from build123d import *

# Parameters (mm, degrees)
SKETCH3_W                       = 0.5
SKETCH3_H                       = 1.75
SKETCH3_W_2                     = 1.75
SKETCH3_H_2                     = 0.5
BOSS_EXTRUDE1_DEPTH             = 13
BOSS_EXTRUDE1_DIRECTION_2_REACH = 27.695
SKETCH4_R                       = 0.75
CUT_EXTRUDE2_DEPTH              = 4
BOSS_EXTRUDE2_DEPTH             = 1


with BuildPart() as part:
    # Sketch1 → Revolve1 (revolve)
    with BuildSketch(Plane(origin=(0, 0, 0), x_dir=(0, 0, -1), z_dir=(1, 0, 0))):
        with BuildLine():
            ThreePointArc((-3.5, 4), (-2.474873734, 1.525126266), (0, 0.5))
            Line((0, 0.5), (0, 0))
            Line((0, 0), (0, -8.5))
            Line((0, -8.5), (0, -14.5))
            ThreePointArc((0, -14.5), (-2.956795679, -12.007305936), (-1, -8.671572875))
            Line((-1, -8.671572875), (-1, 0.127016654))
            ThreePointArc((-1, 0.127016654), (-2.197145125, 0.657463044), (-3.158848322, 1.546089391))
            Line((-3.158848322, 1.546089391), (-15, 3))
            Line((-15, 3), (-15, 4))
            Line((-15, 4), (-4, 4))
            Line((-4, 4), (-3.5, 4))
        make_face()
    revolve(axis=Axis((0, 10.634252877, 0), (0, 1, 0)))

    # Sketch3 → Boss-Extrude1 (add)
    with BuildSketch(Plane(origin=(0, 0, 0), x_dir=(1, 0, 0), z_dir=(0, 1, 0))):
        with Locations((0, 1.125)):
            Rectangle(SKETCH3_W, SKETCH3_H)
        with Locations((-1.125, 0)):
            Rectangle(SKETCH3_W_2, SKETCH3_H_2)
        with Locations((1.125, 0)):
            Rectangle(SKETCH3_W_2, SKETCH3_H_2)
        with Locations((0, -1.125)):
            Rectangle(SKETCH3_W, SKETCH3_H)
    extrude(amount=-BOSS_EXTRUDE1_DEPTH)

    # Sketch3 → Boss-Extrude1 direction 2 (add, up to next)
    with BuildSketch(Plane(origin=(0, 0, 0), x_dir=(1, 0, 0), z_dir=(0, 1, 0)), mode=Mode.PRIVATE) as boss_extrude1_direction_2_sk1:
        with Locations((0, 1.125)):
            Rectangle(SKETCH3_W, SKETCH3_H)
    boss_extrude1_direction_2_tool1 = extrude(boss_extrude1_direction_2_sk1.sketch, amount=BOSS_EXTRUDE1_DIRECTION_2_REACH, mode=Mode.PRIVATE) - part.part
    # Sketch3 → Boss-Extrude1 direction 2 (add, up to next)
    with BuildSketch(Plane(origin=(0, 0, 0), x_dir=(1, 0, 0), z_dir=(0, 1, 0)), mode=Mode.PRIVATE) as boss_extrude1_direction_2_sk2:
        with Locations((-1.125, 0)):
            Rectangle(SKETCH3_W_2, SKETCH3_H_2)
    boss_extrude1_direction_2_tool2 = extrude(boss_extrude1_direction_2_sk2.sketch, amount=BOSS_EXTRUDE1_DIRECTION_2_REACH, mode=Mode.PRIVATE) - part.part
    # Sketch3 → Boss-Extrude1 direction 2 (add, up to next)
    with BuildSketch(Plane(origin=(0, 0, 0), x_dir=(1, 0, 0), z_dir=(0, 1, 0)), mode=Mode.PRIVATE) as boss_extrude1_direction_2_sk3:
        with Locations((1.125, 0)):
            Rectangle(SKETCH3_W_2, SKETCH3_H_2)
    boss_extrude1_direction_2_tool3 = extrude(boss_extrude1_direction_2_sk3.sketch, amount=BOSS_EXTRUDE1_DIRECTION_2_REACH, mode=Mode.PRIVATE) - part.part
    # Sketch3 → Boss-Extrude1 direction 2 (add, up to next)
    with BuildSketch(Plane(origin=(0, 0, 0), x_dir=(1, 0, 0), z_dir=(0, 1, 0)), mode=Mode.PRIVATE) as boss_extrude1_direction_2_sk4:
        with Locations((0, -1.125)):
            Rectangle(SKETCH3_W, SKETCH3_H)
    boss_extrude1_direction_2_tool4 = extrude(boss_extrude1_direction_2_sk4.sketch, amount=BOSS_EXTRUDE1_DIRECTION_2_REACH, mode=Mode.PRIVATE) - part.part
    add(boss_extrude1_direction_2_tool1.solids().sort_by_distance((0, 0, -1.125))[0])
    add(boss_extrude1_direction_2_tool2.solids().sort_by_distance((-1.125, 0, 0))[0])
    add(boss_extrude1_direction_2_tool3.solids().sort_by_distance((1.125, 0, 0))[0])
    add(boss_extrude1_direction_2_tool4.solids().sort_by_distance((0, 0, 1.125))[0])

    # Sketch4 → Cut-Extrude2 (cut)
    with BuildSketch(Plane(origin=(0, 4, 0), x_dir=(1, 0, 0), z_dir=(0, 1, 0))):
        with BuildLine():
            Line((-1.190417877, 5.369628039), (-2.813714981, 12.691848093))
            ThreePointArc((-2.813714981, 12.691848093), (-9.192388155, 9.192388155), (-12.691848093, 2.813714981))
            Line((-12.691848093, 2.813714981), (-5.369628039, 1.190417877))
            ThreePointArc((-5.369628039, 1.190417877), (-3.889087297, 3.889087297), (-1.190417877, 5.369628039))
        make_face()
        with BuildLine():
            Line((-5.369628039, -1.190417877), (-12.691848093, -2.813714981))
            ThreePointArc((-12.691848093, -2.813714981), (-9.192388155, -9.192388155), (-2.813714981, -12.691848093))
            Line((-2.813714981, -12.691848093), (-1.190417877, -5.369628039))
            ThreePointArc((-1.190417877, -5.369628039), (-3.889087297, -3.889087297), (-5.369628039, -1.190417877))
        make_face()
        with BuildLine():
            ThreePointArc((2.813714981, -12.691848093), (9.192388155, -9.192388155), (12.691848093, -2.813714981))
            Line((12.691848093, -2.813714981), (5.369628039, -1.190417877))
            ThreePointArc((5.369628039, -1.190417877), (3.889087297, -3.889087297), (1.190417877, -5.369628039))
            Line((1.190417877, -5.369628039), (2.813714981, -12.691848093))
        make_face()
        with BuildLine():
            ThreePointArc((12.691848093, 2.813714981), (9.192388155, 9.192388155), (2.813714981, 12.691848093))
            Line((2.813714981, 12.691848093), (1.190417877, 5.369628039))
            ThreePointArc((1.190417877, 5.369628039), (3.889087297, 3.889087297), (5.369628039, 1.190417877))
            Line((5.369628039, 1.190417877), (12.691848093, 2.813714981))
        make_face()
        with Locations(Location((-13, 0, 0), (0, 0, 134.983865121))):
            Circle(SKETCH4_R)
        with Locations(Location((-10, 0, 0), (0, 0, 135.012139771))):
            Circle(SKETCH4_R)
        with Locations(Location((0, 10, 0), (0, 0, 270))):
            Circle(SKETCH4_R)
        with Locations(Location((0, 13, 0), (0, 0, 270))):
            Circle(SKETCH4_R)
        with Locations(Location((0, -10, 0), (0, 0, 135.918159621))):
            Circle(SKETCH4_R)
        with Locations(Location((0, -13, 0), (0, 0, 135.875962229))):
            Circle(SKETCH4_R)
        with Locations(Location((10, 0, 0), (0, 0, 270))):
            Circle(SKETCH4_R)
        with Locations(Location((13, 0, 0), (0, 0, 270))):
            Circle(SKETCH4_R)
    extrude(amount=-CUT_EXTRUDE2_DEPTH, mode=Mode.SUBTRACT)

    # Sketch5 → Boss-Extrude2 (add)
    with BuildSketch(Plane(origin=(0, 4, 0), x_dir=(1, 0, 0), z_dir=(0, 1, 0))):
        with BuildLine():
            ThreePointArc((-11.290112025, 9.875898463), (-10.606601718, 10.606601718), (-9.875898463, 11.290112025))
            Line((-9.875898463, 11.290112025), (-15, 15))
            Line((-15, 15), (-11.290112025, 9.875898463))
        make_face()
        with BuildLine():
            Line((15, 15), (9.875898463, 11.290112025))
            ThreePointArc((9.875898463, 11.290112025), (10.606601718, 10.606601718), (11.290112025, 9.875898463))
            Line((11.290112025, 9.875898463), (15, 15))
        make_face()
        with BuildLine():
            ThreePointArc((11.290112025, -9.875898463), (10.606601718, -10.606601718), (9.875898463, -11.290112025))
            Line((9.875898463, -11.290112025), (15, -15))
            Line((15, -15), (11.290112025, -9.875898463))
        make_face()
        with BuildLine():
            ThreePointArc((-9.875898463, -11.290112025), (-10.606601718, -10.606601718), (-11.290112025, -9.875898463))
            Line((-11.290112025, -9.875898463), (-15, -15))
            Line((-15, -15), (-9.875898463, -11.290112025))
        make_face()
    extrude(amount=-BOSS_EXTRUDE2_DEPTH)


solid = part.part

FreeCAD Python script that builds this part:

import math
import FreeCAD as App
import Part
import Sketcher

V = App.Vector
Q = App.Units.Quantity

doc = App.newDocument("Part")
body = doc.addObject("PartDesign::Body", "Body")

# Sketch on YZ plane
sketch1 = doc.addObject("Sketcher::SketchObject", "Sketch")
body.addObject(sketch1)
sketch1.AttachmentSupport = (doc.YZ_Plane, [""])
sketch1.MapMode = "FlatFace"
sketch1.addGeometry(Part.ArcOfCircle(Part.Circle(V(4, 0, 0), V(0, 0, 1), 3.5), math.radians(90), math.radians(180)), False)
sketch1.addGeometry(Part.LineSegment(V(4, 3.5, 0), V(4, 15, 0)), False)
sketch1.addGeometry(Part.LineSegment(V(4, 15, 0), V(3, 15, 0)), False)
sketch1.addGeometry(Part.LineSegment(V(3, 15, 0), V(1.546089, 3.158848, 0)), False)
sketch1.addGeometry(Part.ArcOfCircle(Part.Circle(V(4, 0, 0), V(0, 0, 1), 4), math.radians(127.841387), math.radians(165.522488)), False)
sketch1.addGeometry(Part.LineSegment(V(0.127017, 1, 0), V(-8.671573, 1, 0)), False)
sketch1.addGeometry(Part.ArcOfCircle(Part.Circle(V(-11.5, 0, 0), V(0, 0, 1), 3), math.radians(19.471221), math.radians(180)), False)
sketch1.addGeometry(Part.LineSegment(V(-14.5, 0, 0), V(0.5, 0, 0)), False)
sketch1.addConstraint(Sketcher.Constraint("Coincident", 0, 1, 1, 1))
sketch1.addConstraint(Sketcher.Constraint("Coincident", 1, 2, 2, 1))
sketch1.addConstraint(Sketcher.Constraint("Coincident", 2, 2, 3, 1))
sketch1.addConstraint(Sketcher.Constraint("Coincident", 3, 2, 4, 1))
sketch1.addConstraint(Sketcher.Constraint("Coincident", 4, 2, 5, 1))
sketch1.addConstraint(Sketcher.Constraint("Coincident", 5, 2, 6, 1))
sketch1.addConstraint(Sketcher.Constraint("Coincident", 6, 2, 7, 1))
sketch1.addConstraint(Sketcher.Constraint("Coincident", 7, 2, 0, 2))
sketch1.addConstraint(Sketcher.Constraint("Vertical", 1))
sketch1.addConstraint(Sketcher.Constraint("Horizontal", 2))
sketch1.addConstraint(Sketcher.Constraint("Horizontal", 5))
sketch1.addConstraint(Sketcher.Constraint("Horizontal", 7))
sketch1.addConstraint(Sketcher.Constraint("Coincident", 4, 3, 0, 3))
sketch1.addConstraint(Sketcher.Constraint("PointOnObject", 0, 3, -1))
sketch1.addConstraint(Sketcher.Constraint("PointOnObject", 6, 3, -1))
sketch1.addConstraint(Sketcher.Constraint("PointOnObject", 6, 2, -1))
sketch1.addConstraint(Sketcher.Constraint("Vertical", 4, 3, 0, 1))
sketch1.addConstraint(Sketcher.Constraint("Radius", 4, Q("4 mm")))
sketch1.addConstraint(Sketcher.Constraint("Radius", 6, Q("3 mm")))
sketch1.addConstraint(Sketcher.Constraint("Radius", 0, Q("3.5 mm")))
sketch1.addConstraint(Sketcher.Constraint("DistanceX", 2, 2, 2, 1, Q("1 mm")))
sketch1.addConstraint(Sketcher.Constraint("DistanceX", 7, 1, 7, 2, Q("15 mm")))
sketch1.addConstraint(Sketcher.Constraint("Angle", 3, Q("-97 deg")))
sketch1.addConstraint(Sketcher.Constraint("DistanceY", 1, 1, 1, 2, Q("11.5 mm")))
sketch1.addConstraint(Sketcher.Constraint("DistanceX", -1, 1, 0, 3, Q("4 mm")))
sketch1.addConstraint(Sketcher.Constraint("DistanceY", -1, 1, 4, 2, Q("1 mm")))
revolution = doc.addObject("PartDesign::Revolution", "Revolution")
body.addObject(revolution)
revolution.Profile = sketch1
revolution.ReferenceAxis = (sketch1, ["H_Axis"])
revolution.Angle = 360

# Sketch on XZ plane
sketch2 = doc.addObject("Sketcher::SketchObject", "Sketch001")
body.addObject(sketch2)
sketch2.AttachmentSupport = (doc.XZ_Plane, [""])
sketch2.MapMode = "FlatFace"
sketch2.addGeometry(Part.LineSegment(V(-0.25, -2, 0), V(-0.25, -0.25, 0)), False)
sketch2.addGeometry(Part.LineSegment(V(-0.25, -0.25, 0), V(0.25, -0.25, 0)), False)
sketch2.addGeometry(Part.LineSegment(V(0.25, -0.25, 0), V(0.25, -2, 0)), False)
sketch2.addGeometry(Part.LineSegment(V(0.25, -2, 0), V(-0.25, -2, 0)), False)
sketch2.addGeometry(Part.LineSegment(V(-2, -0.25, 0), V(-2, 0.25, 0)), False)
sketch2.addGeometry(Part.LineSegment(V(-2, 0.25, 0), V(-0.25, 0.25, 0)), False)
sketch2.addGeometry(Part.LineSegment(V(-0.25, 0.25, 0), V(-0.25, -0.25, 0)), False)
sketch2.addGeometry(Part.LineSegment(V(-0.25, -0.25, 0), V(-2, -0.25, 0)), False)
sketch2.addGeometry(Part.LineSegment(V(0.25, -0.25, 0), V(0.25, 0.25, 0)), False)
sketch2.addGeometry(Part.LineSegment(V(0.25, 0.25, 0), V(2, 0.25, 0)), False)
sketch2.addGeometry(Part.LineSegment(V(2, 0.25, 0), V(2, -0.25, 0)), False)
sketch2.addGeometry(Part.LineSegment(V(2, -0.25, 0), V(0.25, -0.25, 0)), False)
sketch2.addGeometry(Part.LineSegment(V(-0.25, 0.25, 0), V(-0.25, 2, 0)), False)
sketch2.addGeometry(Part.LineSegment(V(-0.25, 2, 0), V(0.25, 2, 0)), False)
sketch2.addGeometry(Part.LineSegment(V(0.25, 2, 0), V(0.25, 0.25, 0)), False)
sketch2.addGeometry(Part.LineSegment(V(0.25, 0.25, 0), V(-0.25, 0.25, 0)), False)
sketch2.addConstraint(Sketcher.Constraint("Coincident", 0, 2, 1, 1))
sketch2.addConstraint(Sketcher.Constraint("Coincident", 1, 2, 2, 1))
sketch2.addConstraint(Sketcher.Constraint("Coincident", 2, 2, 3, 1))
sketch2.addConstraint(Sketcher.Constraint("Coincident", 3, 2, 0, 1))
sketch2.addConstraint(Sketcher.Constraint("Coincident", 4, 2, 5, 1))
sketch2.addConstraint(Sketcher.Constraint("Coincident", 5, 2, 6, 1))
sketch2.addConstraint(Sketcher.Constraint("Coincident", 6, 2, 7, 1))
sketch2.addConstraint(Sketcher.Constraint("Coincident", 7, 2, 4, 1))
sketch2.addConstraint(Sketcher.Constraint("Coincident", 8, 2, 9, 1))
sketch2.addConstraint(Sketcher.Constraint("Coincident", 9, 2, 10, 1))
sketch2.addConstraint(Sketcher.Constraint("Coincident", 10, 2, 11, 1))
sketch2.addConstraint(Sketcher.Constraint("Coincident", 11, 2, 8, 1))
sketch2.addConstraint(Sketcher.Constraint("Coincident", 12, 2, 13, 1))
sketch2.addConstraint(Sketcher.Constraint("Coincident", 13, 2, 14, 1))
sketch2.addConstraint(Sketcher.Constraint("Coincident", 14, 2, 15, 1))
sketch2.addConstraint(Sketcher.Constraint("Coincident", 15, 2, 12, 1))
sketch2.addConstraint(Sketcher.Constraint("Vertical", 0))
sketch2.addConstraint(Sketcher.Constraint("Horizontal", 1))
sketch2.addConstraint(Sketcher.Constraint("Vertical", 2))
sketch2.addConstraint(Sketcher.Constraint("Horizontal", 3))
sketch2.addConstraint(Sketcher.Constraint("Vertical", 4))
sketch2.addConstraint(Sketcher.Constraint("Horizontal", 5))
sketch2.addConstraint(Sketcher.Constraint("Vertical", 6))
sketch2.addConstraint(Sketcher.Constraint("Horizontal", 7))
sketch2.addConstraint(Sketcher.Constraint("Vertical", 8))
sketch2.addConstraint(Sketcher.Constraint("Horizontal", 9))
sketch2.addConstraint(Sketcher.Constraint("Vertical", 10))
sketch2.addConstraint(Sketcher.Constraint("Horizontal", 11))
sketch2.addConstraint(Sketcher.Constraint("Vertical", 12))
sketch2.addConstraint(Sketcher.Constraint("Horizontal", 13))
sketch2.addConstraint(Sketcher.Constraint("Vertical", 14))
sketch2.addConstraint(Sketcher.Constraint("Horizontal", 15))
sketch2.addConstraint(Sketcher.Constraint("Coincident", 6, 2, 0, 2))
sketch2.addConstraint(Sketcher.Constraint("Coincident", 11, 2, 1, 2))
sketch2.addConstraint(Sketcher.Constraint("Coincident", 14, 2, 8, 2))
sketch2.addConstraint(Sketcher.Constraint("Coincident", 15, 2, 5, 2))
sketch2.addConstraint(Sketcher.Constraint("Symmetric", 1, 2, 5, 2, -1, 1))
sketch2.addConstraint(Sketcher.Constraint("Equal", 7, 9))
sketch2.addConstraint(Sketcher.Constraint("Equal", 11, 0))
sketch2.addConstraint(Sketcher.Constraint("Equal", 15, 4))
sketch2.addConstraint(Sketcher.Constraint("Equal", 2, 12))
sketch2.addConstraint(Sketcher.Constraint("DistanceX", 1, 1, 1, 2, Q("0.5 mm")))
sketch2.addConstraint(Sketcher.Constraint("DistanceY", 2, 2, -1, 1, Q("2 mm")))
pad1 = doc.addObject("PartDesign::Pad", "Pad")
body.addObject(pad1)
pad1.Profile = sketch2
pad1.Length = 13

# Sketch on XZ plane
sketch3 = doc.addObject("Sketcher::SketchObject", "Sketch002")
body.addObject(sketch3)
sketch3.AttachmentSupport = (doc.XZ_Plane, [""])
sketch3.MapMode = "FlatFace"
sketch3.addGeometry(Part.LineSegment(V(-0.25, -2, 0), V(-0.25, -0.25, 0)), False)
sketch3.addGeometry(Part.LineSegment(V(-0.25, -0.25, 0), V(0.25, -0.25, 0)), False)
sketch3.addGeometry(Part.LineSegment(V(0.25, -0.25, 0), V(0.25, -2, 0)), False)
sketch3.addGeometry(Part.LineSegment(V(0.25, -2, 0), V(-0.25, -2, 0)), False)
sketch3.addConstraint(Sketcher.Constraint("Coincident", 0, 2, 1, 1))
sketch3.addConstraint(Sketcher.Constraint("Coincident", 1, 2, 2, 1))
sketch3.addConstraint(Sketcher.Constraint("Coincident", 2, 2, 3, 1))
sketch3.addConstraint(Sketcher.Constraint("Coincident", 3, 2, 0, 1))
sketch3.addConstraint(Sketcher.Constraint("Vertical", 0))
sketch3.addConstraint(Sketcher.Constraint("Horizontal", 1))
sketch3.addConstraint(Sketcher.Constraint("Vertical", 2))
sketch3.addConstraint(Sketcher.Constraint("Horizontal", 3))
sketch3.addConstraint(Sketcher.Constraint("DistanceX", 1, 1, 1, 2, Q("0.5 mm")))
sketch3.addConstraint(Sketcher.Constraint("DistanceY", 2, 2, -1, 1, Q("2 mm")))
sketch3.addConstraint(Sketcher.Constraint("DistanceY", 0, 1, 0, 2, Q("1.75 mm")))
sketch3.addConstraint(Sketcher.Constraint("DistanceX", 0, 2, -1, 1, Q("0.25 mm")))
pad2 = doc.addObject("PartDesign::Pad", "Pad001")
body.addObject(pad2)
pad2.Profile = sketch3
pad2.Type = "UpToFirst"
pad2.Reversed = True

# Sketch on XZ plane
sketch4 = doc.addObject("Sketcher::SketchObject", "Sketch003")
body.addObject(sketch4)
sketch4.AttachmentSupport = (doc.XZ_Plane, [""])
sketch4.MapMode = "FlatFace"
sketch4.addGeometry(Part.LineSegment(V(-2, -0.25, 0), V(-2, 0.25, 0)), False)
sketch4.addGeometry(Part.LineSegment(V(-2, 0.25, 0), V(-0.25, 0.25, 0)), False)
sketch4.addGeometry(Part.LineSegment(V(-0.25, 0.25, 0), V(-0.25, -0.25, 0)), False)
sketch4.addGeometry(Part.LineSegment(V(-0.25, -0.25, 0), V(-2, -0.25, 0)), False)
sketch4.addConstraint(Sketcher.Constraint("Coincident", 0, 2, 1, 1))
sketch4.addConstraint(Sketcher.Constraint("Coincident", 1, 2, 2, 1))
sketch4.addConstraint(Sketcher.Constraint("Coincident", 2, 2, 3, 1))
sketch4.addConstraint(Sketcher.Constraint("Coincident", 3, 2, 0, 1))
sketch4.addConstraint(Sketcher.Constraint("Vertical", 0))
sketch4.addConstraint(Sketcher.Constraint("Horizontal", 1))
sketch4.addConstraint(Sketcher.Constraint("Vertical", 2))
sketch4.addConstraint(Sketcher.Constraint("Horizontal", 3))
sketch4.addConstraint(Sketcher.Constraint("DistanceY", 0, 1, 0, 2, Q("0.5 mm")))
sketch4.addConstraint(Sketcher.Constraint("DistanceX", 0, 2, -1, 1, Q("2 mm")))
sketch4.addConstraint(Sketcher.Constraint("DistanceX", 1, 1, 1, 2, Q("1.75 mm")))
sketch4.addConstraint(Sketcher.Constraint("DistanceY", -1, 1, 0, 2, Q("0.25 mm")))
pad3 = doc.addObject("PartDesign::Pad", "Pad002")
body.addObject(pad3)
pad3.Profile = sketch4
pad3.Type = "UpToFirst"
pad3.Reversed = True

# Sketch on XZ plane
sketch5 = doc.addObject("Sketcher::SketchObject", "Sketch004")
body.addObject(sketch5)
sketch5.AttachmentSupport = (doc.XZ_Plane, [""])
sketch5.MapMode = "FlatFace"
sketch5.addGeometry(Part.LineSegment(V(0.25, -0.25, 0), V(0.25, 0.25, 0)), False)
sketch5.addGeometry(Part.LineSegment(V(0.25, 0.25, 0), V(2, 0.25, 0)), False)
sketch5.addGeometry(Part.LineSegment(V(2, 0.25, 0), V(2, -0.25, 0)), False)
sketch5.addGeometry(Part.LineSegment(V(2, -0.25, 0), V(0.25, -0.25, 0)), False)
sketch5.addConstraint(Sketcher.Constraint("Coincident", 0, 2, 1, 1))
sketch5.addConstraint(Sketcher.Constraint("Coincident", 1, 2, 2, 1))
sketch5.addConstraint(Sketcher.Constraint("Coincident", 2, 2, 3, 1))
sketch5.addConstraint(Sketcher.Constraint("Coincident", 3, 2, 0, 1))
sketch5.addConstraint(Sketcher.Constraint("Vertical", 0))
sketch5.addConstraint(Sketcher.Constraint("Horizontal", 1))
sketch5.addConstraint(Sketcher.Constraint("Vertical", 2))
sketch5.addConstraint(Sketcher.Constraint("Horizontal", 3))
sketch5.addConstraint(Sketcher.Constraint("DistanceY", 0, 1, 0, 2, Q("0.5 mm")))
sketch5.addConstraint(Sketcher.Constraint("DistanceX", -1, 1, 1, 2, Q("2 mm")))
sketch5.addConstraint(Sketcher.Constraint("DistanceX", 1, 1, 1, 2, Q("1.75 mm")))
sketch5.addConstraint(Sketcher.Constraint("DistanceY", -1, 1, 0, 2, Q("0.25 mm")))
pad4 = doc.addObject("PartDesign::Pad", "Pad003")
body.addObject(pad4)
pad4.Profile = sketch5
pad4.Type = "UpToFirst"
pad4.Reversed = True

# Sketch on XZ plane
sketch6 = doc.addObject("Sketcher::SketchObject", "Sketch005")
body.addObject(sketch6)
sketch6.AttachmentSupport = (doc.XZ_Plane, [""])
sketch6.MapMode = "FlatFace"
sketch6.addGeometry(Part.LineSegment(V(-0.25, 0.25, 0), V(-0.25, 2, 0)), False)
sketch6.addGeometry(Part.LineSegment(V(-0.25, 2, 0), V(0.25, 2, 0)), False)
sketch6.addGeometry(Part.LineSegment(V(0.25, 2, 0), V(0.25, 0.25, 0)), False)
sketch6.addGeometry(Part.LineSegment(V(0.25, 0.25, 0), V(-0.25, 0.25, 0)), False)
sketch6.addConstraint(Sketcher.Constraint("Coincident", 0, 2, 1, 1))
sketch6.addConstraint(Sketcher.Constraint("Coincident", 1, 2, 2, 1))
sketch6.addConstraint(Sketcher.Constraint("Coincident", 2, 2, 3, 1))
sketch6.addConstraint(Sketcher.Constraint("Coincident", 3, 2, 0, 1))
sketch6.addConstraint(Sketcher.Constraint("Vertical", 0))
sketch6.addConstraint(Sketcher.Constraint("Horizontal", 1))
sketch6.addConstraint(Sketcher.Constraint("Vertical", 2))
sketch6.addConstraint(Sketcher.Constraint("Horizontal", 3))
sketch6.addConstraint(Sketcher.Constraint("DistanceX", 1, 1, 1, 2, Q("0.5 mm")))
sketch6.addConstraint(Sketcher.Constraint("DistanceY", -1, 1, 0, 2, Q("2 mm")))
sketch6.addConstraint(Sketcher.Constraint("DistanceY", 0, 1, 0, 2, Q("1.75 mm")))
sketch6.addConstraint(Sketcher.Constraint("DistanceX", 0, 2, -1, 1, Q("0.25 mm")))
pad5 = doc.addObject("PartDesign::Pad", "Pad004")
body.addObject(pad5)
pad5.Profile = sketch6
pad5.Type = "UpToFirst"
pad5.Reversed = True

# Sketch on XZ plane
sketch7 = doc.addObject("Sketcher::SketchObject", "Sketch006")
body.addObject(sketch7)
sketch7.AttachmentSupport = (doc.XZ_Plane, [""])
sketch7.MapMode = "FlatFace"
sketch7.AttachmentOffset = App.Placement(V(0, 0, -4), App.Rotation())
sketch7.addGeometry(Part.LineSegment(V(-1.190418, -5.369628, 0), V(-2.813715, -12.691848, 0)), False)
sketch7.addGeometry(Part.ArcOfCircle(Part.Circle(V(0, 0, 0), V(0, 0, 1), 13), math.radians(-167.5), math.radians(-102.5)), False)
sketch7.addGeometry(Part.LineSegment(V(-12.691848, -2.813715, 0), V(-5.369628, -1.190418, 0)), False)
sketch7.addGeometry(Part.ArcOfCircle(Part.Circle(V(0, 0, 0), V(0, 0, 1), 5.5), math.radians(-167.5), math.radians(-102.5)), False)
sketch7.addGeometry(Part.LineSegment(V(-5.369628, 1.190418, 0), V(-12.691848, 2.813715, 0)), False)
sketch7.addGeometry(Part.ArcOfCircle(Part.Circle(V(0, 0, 0), V(0, 0, 1), 13), math.radians(102.5), math.radians(167.5)), False)
sketch7.addGeometry(Part.LineSegment(V(-2.813715, 12.691848, 0), V(-1.190418, 5.369628, 0)), False)
sketch7.addGeometry(Part.ArcOfCircle(Part.Circle(V(0, 0, 0), V(0, 0, 1), 5.5), math.radians(102.5), math.radians(167.5)), False)
sketch7.addGeometry(Part.ArcOfCircle(Part.Circle(V(0, 0, 0), V(0, 0, 1), 13), math.radians(12.5), math.radians(77.5)), False)
sketch7.addGeometry(Part.LineSegment(V(12.691848, 2.813715, 0), V(5.369628, 1.190418, 0)), False)
sketch7.addGeometry(Part.ArcOfCircle(Part.Circle(V(0, 0, 0), V(0, 0, 1), 5.5), math.radians(12.5), math.radians(77.5)), False)
sketch7.addGeometry(Part.LineSegment(V(1.190418, 5.369628, 0), V(2.813715, 12.691848, 0)), False)
sketch7.addGeometry(Part.ArcOfCircle(Part.Circle(V(0, 0, 0), V(0, 0, 1), 13), math.radians(-77.5), math.radians(-12.5)), False)
sketch7.addGeometry(Part.LineSegment(V(2.813715, -12.691848, 0), V(1.190418, -5.369628, 0)), False)
sketch7.addGeometry(Part.ArcOfCircle(Part.Circle(V(0, 0, 0), V(0, 0, 1), 5.5), math.radians(-77.5), math.radians(-12.5)), False)
sketch7.addGeometry(Part.LineSegment(V(5.369628, -1.190418, 0), V(12.691848, -2.813715, 0)), False)
sketch7.addGeometry(Part.Circle(V(-13, 0, 0), V(0, 0, 1), 0.75), False)
sketch7.addGeometry(Part.Circle(V(-10, 0, 0), V(0, 0, 1), 0.75), False)
sketch7.addGeometry(Part.Circle(V(0, -10, 0), V(0, 0, 1), 0.75), False)
sketch7.addGeometry(Part.Circle(V(0, -13, 0), V(0, 0, 1), 0.75), False)
sketch7.addGeometry(Part.Circle(V(0, 10, 0), V(0, 0, 1), 0.75), False)
sketch7.addGeometry(Part.Circle(V(0, 13, 0), V(0, 0, 1), 0.75), False)
sketch7.addGeometry(Part.Circle(V(10, 0, 0), V(0, 0, 1), 0.75), False)
sketch7.addGeometry(Part.Circle(V(13, 0, 0), V(0, 0, 1), 0.75), False)
sketch7.addConstraint(Sketcher.Constraint("Coincident", 0, 2, 1, 2))
sketch7.addConstraint(Sketcher.Constraint("Coincident", 1, 1, 2, 1))
sketch7.addConstraint(Sketcher.Constraint("Coincident", 2, 2, 3, 1))
sketch7.addConstraint(Sketcher.Constraint("Coincident", 3, 2, 0, 1))
sketch7.addConstraint(Sketcher.Constraint("Coincident", 4, 2, 5, 2))
sketch7.addConstraint(Sketcher.Constraint("Coincident", 5, 1, 6, 1))
sketch7.addConstraint(Sketcher.Constraint("Coincident", 6, 2, 7, 1))
sketch7.addConstraint(Sketcher.Constraint("Coincident", 7, 2, 4, 1))
sketch7.addConstraint(Sketcher.Constraint("Coincident", 8, 1, 9, 1))
sketch7.addConstraint(Sketcher.Constraint("Coincident", 9, 2, 10, 1))
sketch7.addConstraint(Sketcher.Constraint("Coincident", 10, 2, 11, 1))
sketch7.addConstraint(Sketcher.Constraint("Coincident", 11, 2, 8, 2))
sketch7.addConstraint(Sketcher.Constraint("Coincident", 12, 1, 13, 1))
sketch7.addConstraint(Sketcher.Constraint("Coincident", 13, 2, 14, 1))
sketch7.addConstraint(Sketcher.Constraint("Coincident", 14, 2, 15, 1))
sketch7.addConstraint(Sketcher.Constraint("Coincident", 15, 2, 12, 2))
sketch7.addConstraint(Sketcher.Constraint("Coincident", 1, 3, -1, 1))
sketch7.addConstraint(Sketcher.Constraint("Coincident", 3, 3, -1, 1))
sketch7.addConstraint(Sketcher.Constraint("Coincident", 5, 3, -1, 1))
sketch7.addConstraint(Sketcher.Constraint("Coincident", 7, 3, -1, 1))
sketch7.addConstraint(Sketcher.Constraint("Coincident", 8, 3, -1, 1))
sketch7.addConstraint(Sketcher.Constraint("Coincident", 10, 3, -1, 1))
sketch7.addConstraint(Sketcher.Constraint("Coincident", 12, 3, -1, 1))
sketch7.addConstraint(Sketcher.Constraint("Coincident", 14, 3, -1, 1))
sketch7.addConstraint(Sketcher.Constraint("Equal", 1, 5))
sketch7.addConstraint(Sketcher.Constraint("Equal", 3, 7))
sketch7.addConstraint(Sketcher.Constraint("Equal", 5, 8))
sketch7.addConstraint(Sketcher.Constraint("Equal", 7, 10))
sketch7.addConstraint(Sketcher.Constraint("Equal", 8, 12))
sketch7.addConstraint(Sketcher.Constraint("Equal", 10, 14))
sketch7.addConstraint(Sketcher.Constraint("Equal", 16, 17))
sketch7.addConstraint(Sketcher.Constraint("Equal", 17, 18))
sketch7.addConstraint(Sketcher.Constraint("Equal", 18, 19))
sketch7.addConstraint(Sketcher.Constraint("Equal", 19, 20))
sketch7.addConstraint(Sketcher.Constraint("Equal", 20, 21))
sketch7.addConstraint(Sketcher.Constraint("Equal", 21, 22))
sketch7.addConstraint(Sketcher.Constraint("Equal", 22, 23))
sketch7.addConstraint(Sketcher.Constraint("Symmetric", 18, 3, 20, 3, -1, 1))
sketch7.addConstraint(Sketcher.Constraint("Symmetric", 19, 3, 21, 3, -1, 1))
sketch7.addConstraint(Sketcher.Constraint("Symmetric", 17, 3, 22, 3, -1, 1))
sketch7.addConstraint(Sketcher.Constraint("Symmetric", 16, 3, 23, 3, -1, 1))
sketch7.addConstraint(Sketcher.Constraint("PointOnObject", 16, 3, -1))
sketch7.addConstraint(Sketcher.Constraint("PointOnObject", 17, 3, -1))
sketch7.addConstraint(Sketcher.Constraint("PointOnObject", 18, 3, -2))
sketch7.addConstraint(Sketcher.Constraint("PointOnObject", 19, 3, -2))
sketch7.addConstraint(Sketcher.Constraint("Perpendicular", 0, 4))
sketch7.addConstraint(Sketcher.Constraint("Perpendicular", 2, 6))
sketch7.addConstraint(Sketcher.Constraint("Perpendicular", 6, 9))
sketch7.addConstraint(Sketcher.Constraint("Perpendicular", 4, 11))
sketch7.addConstraint(Sketcher.Constraint("Perpendicular", 9, 13))
sketch7.addConstraint(Sketcher.Constraint("Perpendicular", 11, 15))
sketch7.addConstraint(Sketcher.Constraint("Horizontal", 4, 2, 8, 1))
sketch7.addConstraint(Sketcher.Constraint("Horizontal", 7, 2, 9, 2))
sketch7.addConstraint(Sketcher.Constraint("Horizontal", 6, 2, 10, 2))
sketch7.addConstraint(Sketcher.Constraint("Horizontal", 0, 2, 12, 1))
sketch7.addConstraint(Sketcher.Constraint("Horizontal", 2, 2, 14, 2))
sketch7.addConstraint(Sketcher.Constraint("Vertical", 1, 1, 4, 2))
sketch7.addConstraint(Sketcher.Constraint("Vertical", 0, 2, 5, 1))
sketch7.addConstraint(Sketcher.Constraint("Radius", 1, Q("13 mm")))
sketch7.addConstraint(Sketcher.Constraint("Diameter", 16, Q("1.5 mm")))
sketch7.addConstraint(Sketcher.Constraint("Radius", 3, Q("5.5 mm")))
sketch7.addConstraint(Sketcher.Constraint("DistanceX", 16, 3, -1, 1, Q("13 mm")))
sketch7.addConstraint(Sketcher.Constraint("DistanceX", 17, 3, -1, 1, Q("10 mm")))
sketch7.addConstraint(Sketcher.Constraint("DistanceY", 18, 3, -1, 1, Q("10 mm")))
sketch7.addConstraint(Sketcher.Constraint("DistanceY", 19, 3, -1, 1, Q("13 mm")))
sketch7.addConstraint(Sketcher.Constraint("Angle", 0, Q("-102.5 deg")))
sketch7.addConstraint(Sketcher.Constraint("DistanceY", 0, 2, -1, 1, Q("12.691848 mm")))
sketch7.addConstraint(Sketcher.Constraint("DistanceX", 1, 1, -1, 1, Q("12.691848 mm")))
pocket1 = doc.addObject("PartDesign::Pocket", "Pocket")
body.addObject(pocket1)
pocket1.Profile = sketch7
pocket1.Length = 4
pocket1.Reversed = True

# Sketch on XZ plane
sketch8 = doc.addObject("Sketcher::SketchObject", "Sketch007")
body.addObject(sketch8)
sketch8.AttachmentSupport = (doc.XZ_Plane, [""])
sketch8.MapMode = "FlatFace"
sketch8.AttachmentOffset = App.Placement(V(0, 0, -4), App.Rotation())
sketch8.addGeometry(Part.ArcOfCircle(Part.Circle(V(0, 0, 0), V(0, 0, 1), 15), math.radians(-138.822554), math.radians(-131.177446)), False)
sketch8.addGeometry(Part.LineSegment(V(-9.875898, -11.290112, 0), V(-15, -15, 0)), False)
sketch8.addGeometry(Part.LineSegment(V(-15, -15, 0), V(-11.290112, -9.875898, 0)), False)
sketch8.addGeometry(Part.LineSegment(V(15, -15, 0), V(9.875898, -11.290112, 0)), False)
sketch8.addGeometry(Part.ArcOfCircle(Part.Circle(V(0, 0, 0), V(0, 0, 1), 15), math.radians(-48.822554), math.radians(-41.177446)), False)
sketch8.addGeometry(Part.LineSegment(V(11.290112, -9.875898, 0), V(15, -15, 0)), False)
sketch8.addGeometry(Part.ArcOfCircle(Part.Circle(V(0, 0, 0), V(0, 0, 1), 15), math.radians(41.177446), math.radians(48.822554)), False)
sketch8.addGeometry(Part.LineSegment(V(9.875898, 11.290112, 0), V(15, 15, 0)), False)
sketch8.addGeometry(Part.LineSegment(V(15, 15, 0), V(11.290112, 9.875898, 0)), False)
sketch8.addGeometry(Part.ArcOfCircle(Part.Circle(V(0, 0, 0), V(0, 0, 1), 15), math.radians(131.177446), math.radians(138.822554)), False)
sketch8.addGeometry(Part.LineSegment(V(-11.290112, 9.875898, 0), V(-15, 15, 0)), False)
sketch8.addGeometry(Part.LineSegment(V(-15, 15, 0), V(-9.875898, 11.290112, 0)), False)
sketch8.addConstraint(Sketcher.Constraint("Coincident", 0, 2, 1, 1))
sketch8.addConstraint(Sketcher.Constraint("Coincident", 1, 2, 2, 1))
sketch8.addConstraint(Sketcher.Constraint("Coincident", 2, 2, 0, 1))
sketch8.addConstraint(Sketcher.Constraint("Coincident", 3, 2, 4, 1))
sketch8.addConstraint(Sketcher.Constraint("Coincident", 4, 2, 5, 1))
sketch8.addConstraint(Sketcher.Constraint("Coincident", 5, 2, 3, 1))
sketch8.addConstraint(Sketcher.Constraint("Coincident", 6, 2, 7, 1))
sketch8.addConstraint(Sketcher.Constraint("Coincident", 7, 2, 8, 1))
sketch8.addConstraint(Sketcher.Constraint("Coincident", 8, 2, 6, 1))
sketch8.addConstraint(Sketcher.Constraint("Coincident", 9, 2, 10, 1))
sketch8.addConstraint(Sketcher.Constraint("Coincident", 10, 2, 11, 1))
sketch8.addConstraint(Sketcher.Constraint("Coincident", 11, 2, 9, 1))
sketch8.addConstraint(Sketcher.Constraint("Coincident", 0, 3, -1, 1))
sketch8.addConstraint(Sketcher.Constraint("Coincident", 4, 3, -1, 1))
sketch8.addConstraint(Sketcher.Constraint("Coincident", 6, 3, -1, 1))
sketch8.addConstraint(Sketcher.Constraint("Coincident", 9, 3, -1, 1))
sketch8.addConstraint(Sketcher.Constraint("Equal", 0, 4))
sketch8.addConstraint(Sketcher.Constraint("Equal", 4, 6))
sketch8.addConstraint(Sketcher.Constraint("Equal", 6, 9))
sketch8.addConstraint(Sketcher.Constraint("Symmetric", 1, 2, 7, 2, -1, 1))
sketch8.addConstraint(Sketcher.Constraint("Symmetric", 5, 2, 10, 2, -1, 1))
sketch8.addConstraint(Sketcher.Constraint("Symmetric", 1, 2, 5, 2, -2))
sketch8.addConstraint(Sketcher.Constraint("Perpendicular", 2, 3))
sketch8.addConstraint(Sketcher.Constraint("Perpendicular", 1, 5))
sketch8.addConstraint(Sketcher.Constraint("Perpendicular", 5, 7))
sketch8.addConstraint(Sketcher.Constraint("Perpendicular", 3, 8))
sketch8.addConstraint(Sketcher.Constraint("Perpendicular", 7, 10))
sketch8.addConstraint(Sketcher.Constraint("Perpendicular", 8, 11))
sketch8.addConstraint(Sketcher.Constraint("Horizontal", 0, 2, 3, 2))
sketch8.addConstraint(Sketcher.Constraint("Equal", 1, 2))
sketch8.addConstraint(Sketcher.Constraint("Radius", 0, Q("15 mm")))
sketch8.addConstraint(Sketcher.Constraint("DistanceX", 1, 2, -1, 1, Q("15 mm")))
sketch8.addConstraint(Sketcher.Constraint("DistanceX", 0, 2, -1, 1, Q("9.875898 mm")))
pad6 = doc.addObject("PartDesign::Pad", "Pad005")
body.addObject(pad6)
pad6.Profile = sketch8
pad6.Length = 1

doc.recompute()
